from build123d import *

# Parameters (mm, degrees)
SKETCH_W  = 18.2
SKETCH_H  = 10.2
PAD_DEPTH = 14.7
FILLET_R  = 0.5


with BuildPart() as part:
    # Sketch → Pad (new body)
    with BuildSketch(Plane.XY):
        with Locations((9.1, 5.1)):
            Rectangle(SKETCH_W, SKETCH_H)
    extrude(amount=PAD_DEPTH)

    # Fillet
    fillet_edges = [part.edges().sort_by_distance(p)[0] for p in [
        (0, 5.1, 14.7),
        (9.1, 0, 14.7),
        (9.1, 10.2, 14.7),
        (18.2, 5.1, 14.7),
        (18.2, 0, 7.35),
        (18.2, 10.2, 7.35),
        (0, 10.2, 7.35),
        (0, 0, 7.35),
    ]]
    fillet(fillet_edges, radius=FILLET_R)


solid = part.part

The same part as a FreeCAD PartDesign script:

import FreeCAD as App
import Part
import Sketcher
from FreeCAD import Vector
Q = App.Units.Quantity


def edges_at(feature, points):
    """Names of the edges that pass closest to the given points."""
    edges = feature.Shape.Edges
    near = lambda p: min(range(len(edges)), key=lambda i: edges[i].distToShape(Part.Vertex(*p))[0])
    return sorted({f"Edge{near(p) + 1}" for p in points})

doc = App.newDocument("Part")
body = doc.addObject("PartDesign::Body", "Body")

sketch1 = body.newObject("Sketcher::SketchObject", "Sketch")
sketch1.AttachmentSupport = (doc.getObject("XY_Plane"), [""])
sketch1.MapMode = "FlatFace"
sketch1.addGeometry(Part.LineSegment(Vector(0, 10.2, 0), Vector(0, 0, 0)), False)
sketch1.addGeometry(Part.LineSegment(Vector(0, 0, 0), Vector(18.2, 0, 0)), False)
sketch1.addGeometry(Part.LineSegment(Vector(18.2, 0, 0), Vector(18.2, 10.2, 0)), False)
sketch1.addGeometry(Part.LineSegment(Vector(18.2, 10.2, 0), Vector(0, 10.2, 0)), False)
sketch1.addConstraint(Sketcher.Constraint("Coincident", 0, 2, 1, 1))
sketch1.addConstraint(Sketcher.Constraint("Coincident", 1, 2, 2, 1))
sketch1.addConstraint(Sketcher.Constraint("Coincident", 2, 2, 3, 1))
sketch1.addConstraint(Sketcher.Constraint("Coincident", 3, 2, 0, 1))
sketch1.addConstraint(Sketcher.Constraint("Vertical", 0))
sketch1.addConstraint(Sketcher.Constraint("Horizontal", 1))
sketch1.addConstraint(Sketcher.Constraint("Vertical", 2))
sketch1.addConstraint(Sketcher.Constraint("Horizontal", 3))
sketch1.addConstraint(Sketcher.Constraint("Coincident", 0, 2, -1, 1))
sketch1.addConstraint(Sketcher.Constraint("DistanceX", 1, 1, 1, 2, Q("18.2 mm")))
sketch1.addConstraint(Sketcher.Constraint("DistanceY", 0, 2, 0, 1, Q("10.2 mm")))
pad1 = body.newObject("PartDesign::Pad", "Pad")
pad1.Profile = sketch1
pad1.Length = 14.7
doc.recompute()

fillet = body.newObject("PartDesign::Fillet", "Fillet")
fillet.Base = (pad1, edges_at(pad1, [
    (0, 5.1, 14.7),
    (9.1, 0, 14.7),
    (9.1, 10.2, 14.7),
    (18.2, 5.1, 14.7),
    (18.2, 0, 7.35),
    (18.2, 10.2, 7.35),
    (0, 10.2, 7.35),
    (0, 0, 7.35),
]))
fillet.Radius = 0.5

doc.recompute()
